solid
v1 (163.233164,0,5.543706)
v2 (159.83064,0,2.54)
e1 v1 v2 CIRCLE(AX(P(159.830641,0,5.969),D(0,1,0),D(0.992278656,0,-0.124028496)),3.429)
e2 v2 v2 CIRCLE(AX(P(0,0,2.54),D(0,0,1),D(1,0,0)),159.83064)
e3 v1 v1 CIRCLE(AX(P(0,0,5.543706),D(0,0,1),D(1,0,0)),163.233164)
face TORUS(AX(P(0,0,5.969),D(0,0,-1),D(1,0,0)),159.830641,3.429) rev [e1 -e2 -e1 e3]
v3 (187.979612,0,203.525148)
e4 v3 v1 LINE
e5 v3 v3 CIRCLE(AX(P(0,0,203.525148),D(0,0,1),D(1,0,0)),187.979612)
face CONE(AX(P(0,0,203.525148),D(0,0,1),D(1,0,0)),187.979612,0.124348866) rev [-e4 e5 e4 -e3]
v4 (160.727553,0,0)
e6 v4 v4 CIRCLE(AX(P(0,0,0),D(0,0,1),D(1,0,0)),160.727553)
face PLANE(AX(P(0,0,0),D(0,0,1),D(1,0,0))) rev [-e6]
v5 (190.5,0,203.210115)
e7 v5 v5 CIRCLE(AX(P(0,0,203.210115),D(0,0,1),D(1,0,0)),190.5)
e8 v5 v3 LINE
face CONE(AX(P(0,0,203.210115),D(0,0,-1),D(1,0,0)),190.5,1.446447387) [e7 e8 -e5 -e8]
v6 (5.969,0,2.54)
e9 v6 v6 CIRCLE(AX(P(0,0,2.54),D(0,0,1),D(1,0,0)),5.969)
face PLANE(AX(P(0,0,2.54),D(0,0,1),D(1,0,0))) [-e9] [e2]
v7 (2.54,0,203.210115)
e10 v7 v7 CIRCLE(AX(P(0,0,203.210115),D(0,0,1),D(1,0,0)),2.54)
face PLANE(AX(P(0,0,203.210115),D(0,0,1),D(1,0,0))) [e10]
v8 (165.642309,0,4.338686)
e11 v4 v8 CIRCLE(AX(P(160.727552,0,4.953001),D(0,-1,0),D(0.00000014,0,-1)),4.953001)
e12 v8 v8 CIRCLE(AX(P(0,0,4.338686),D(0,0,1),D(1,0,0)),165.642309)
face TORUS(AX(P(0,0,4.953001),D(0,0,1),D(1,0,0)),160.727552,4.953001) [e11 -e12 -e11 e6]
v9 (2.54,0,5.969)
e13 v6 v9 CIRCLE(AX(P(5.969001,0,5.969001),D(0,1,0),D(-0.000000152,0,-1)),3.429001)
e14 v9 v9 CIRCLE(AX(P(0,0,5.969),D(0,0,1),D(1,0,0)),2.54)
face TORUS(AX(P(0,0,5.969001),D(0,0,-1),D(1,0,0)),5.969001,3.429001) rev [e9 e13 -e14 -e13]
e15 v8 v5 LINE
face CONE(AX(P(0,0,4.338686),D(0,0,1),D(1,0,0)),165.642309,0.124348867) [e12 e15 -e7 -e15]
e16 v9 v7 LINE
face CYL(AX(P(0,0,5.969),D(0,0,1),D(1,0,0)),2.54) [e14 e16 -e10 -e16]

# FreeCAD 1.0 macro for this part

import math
import FreeCAD as App
import Part
import Sketcher

V = App.Vector
Q = App.Units.Quantity

doc = App.newDocument("Part")
body = doc.addObject("PartDesign::Body", "Body")

sketch1 = body.newObject("Sketcher::SketchObject", "Sketch")
sketch1.AttachmentSupport = (doc.getObject("XZ_Plane"), [""])
sketch1.MapMode = "FlatFace"
sketch1.addGeometry([
    Part.LineSegment(V(0, 203.2, 0), V(0, 0, 0)),
    Part.LineSegment(V(0, 0, 0), V(160.7, 0, 0)),
    Part.ArcOfCircle(Part.Circle(V(160.7, 5, 0), V(0, 0, 1), 5), math.radians(-90), math.radians(-7)),
    Part.LineSegment(V(165.6, 4.3, 0), V(190.5, 203.2, 0)),
    Part.LineSegment(V(190.5, 203.2, 0), V(188, 203.5, 0)),
    Part.LineSegment(V(188, 203.5, 0), V(163.2, 5.5, 0)),
    Part.ArcOfCircle(Part.Circle(V(159.8, 6, 0), V(0, 0, 1), 3.4), math.radians(-90), math.radians(-7)),
    Part.LineSegment(V(159.8, 2.5, 0), V(6, 2.5, 0)),
    Part.ArcOfCircle(Part.Circle(V(6, 6, 0), V(0, 0, 1), 3.4), math.radians(-180), math.radians(-90)),
    Part.LineSegment(V(2.5, 6, 0), V(2.5, 203.2, 0)),
    Part.LineSegment(V(2.5, 203.2, 0), V(0, 203.2, 0)),
], False)
sketch1.addConstraint([
    Sketcher.Constraint("Coincident", 0, 2, 1, 1),
    Sketcher.Constraint("Tangent", 1, 2, 2, 1),
    Sketcher.Constraint("Tangent", 2, 2, 3, 1),
    Sketcher.Constraint("Coincident", 3, 2, 4, 1),
    Sketcher.Constraint("Coincident", 4, 2, 5, 1),
    Sketcher.Constraint("Tangent", 5, 2, 6, 2),
    Sketcher.Constraint("Tangent", 6, 1, 7, 1),
    Sketcher.Constraint("Tangent", 7, 2, 8, 2),
    Sketcher.Constraint("Tangent", 8, 1, 9, 1),
    Sketcher.Constraint("Coincident", 9, 2, 10, 1),
    Sketcher.Constraint("Coincident", 10, 2, 0, 1),
    Sketcher.Constraint("Vertical", 0),
    Sketcher.Constraint("Horizontal", 1),
    Sketcher.Constraint("Horizontal", 7),
    Sketcher.Constraint("Vertical", 9),
    Sketcher.Constraint("Horizontal", 10),
    Sketcher.Constraint("Coincident", 0, 2, -1, 1),
    Sketcher.Constraint("Equal", 6, 8),
    Sketcher.Constraint("Perpendicular", 3, 4),
    Sketcher.Constraint("Perpendicular", 4, 5),
    Sketcher.Constraint("Horizontal", 3, 2, 9, 2),
    Sketcher.Constraint("DistanceX", 10, 2, 10, 1, Q("0.1 in")),
    Sketcher.Constraint("Radius", 2, Q("0.195 in")),
    Sketcher.Constraint("Radius", 6, Q("0.135 in")),
    Sketcher.Constraint("Distance", 4, Q("0.1 in")),
    Sketcher.Constraint("DistanceX", -1, 1, 3, 2, Q("7.5 in")),
    Sketcher.Constraint("DistanceY", -1, 1, 6, 1, Q("0.1 in")),
    Sketcher.Constraint("DistanceX", 7, 2, 7, 1, Q("153.86164 mm")),
    Sketcher.Constraint("DistanceY", 0, 2, 0, 1, Q("203.210115 mm")),
])
revolution = body.newObject("PartDesign::Revolution", "Revolution")
revolution.Profile = sketch1
revolution.ReferenceAxis = (sketch1, ["V_Axis"])
revolution.Angle = 360

doc.recompute()
